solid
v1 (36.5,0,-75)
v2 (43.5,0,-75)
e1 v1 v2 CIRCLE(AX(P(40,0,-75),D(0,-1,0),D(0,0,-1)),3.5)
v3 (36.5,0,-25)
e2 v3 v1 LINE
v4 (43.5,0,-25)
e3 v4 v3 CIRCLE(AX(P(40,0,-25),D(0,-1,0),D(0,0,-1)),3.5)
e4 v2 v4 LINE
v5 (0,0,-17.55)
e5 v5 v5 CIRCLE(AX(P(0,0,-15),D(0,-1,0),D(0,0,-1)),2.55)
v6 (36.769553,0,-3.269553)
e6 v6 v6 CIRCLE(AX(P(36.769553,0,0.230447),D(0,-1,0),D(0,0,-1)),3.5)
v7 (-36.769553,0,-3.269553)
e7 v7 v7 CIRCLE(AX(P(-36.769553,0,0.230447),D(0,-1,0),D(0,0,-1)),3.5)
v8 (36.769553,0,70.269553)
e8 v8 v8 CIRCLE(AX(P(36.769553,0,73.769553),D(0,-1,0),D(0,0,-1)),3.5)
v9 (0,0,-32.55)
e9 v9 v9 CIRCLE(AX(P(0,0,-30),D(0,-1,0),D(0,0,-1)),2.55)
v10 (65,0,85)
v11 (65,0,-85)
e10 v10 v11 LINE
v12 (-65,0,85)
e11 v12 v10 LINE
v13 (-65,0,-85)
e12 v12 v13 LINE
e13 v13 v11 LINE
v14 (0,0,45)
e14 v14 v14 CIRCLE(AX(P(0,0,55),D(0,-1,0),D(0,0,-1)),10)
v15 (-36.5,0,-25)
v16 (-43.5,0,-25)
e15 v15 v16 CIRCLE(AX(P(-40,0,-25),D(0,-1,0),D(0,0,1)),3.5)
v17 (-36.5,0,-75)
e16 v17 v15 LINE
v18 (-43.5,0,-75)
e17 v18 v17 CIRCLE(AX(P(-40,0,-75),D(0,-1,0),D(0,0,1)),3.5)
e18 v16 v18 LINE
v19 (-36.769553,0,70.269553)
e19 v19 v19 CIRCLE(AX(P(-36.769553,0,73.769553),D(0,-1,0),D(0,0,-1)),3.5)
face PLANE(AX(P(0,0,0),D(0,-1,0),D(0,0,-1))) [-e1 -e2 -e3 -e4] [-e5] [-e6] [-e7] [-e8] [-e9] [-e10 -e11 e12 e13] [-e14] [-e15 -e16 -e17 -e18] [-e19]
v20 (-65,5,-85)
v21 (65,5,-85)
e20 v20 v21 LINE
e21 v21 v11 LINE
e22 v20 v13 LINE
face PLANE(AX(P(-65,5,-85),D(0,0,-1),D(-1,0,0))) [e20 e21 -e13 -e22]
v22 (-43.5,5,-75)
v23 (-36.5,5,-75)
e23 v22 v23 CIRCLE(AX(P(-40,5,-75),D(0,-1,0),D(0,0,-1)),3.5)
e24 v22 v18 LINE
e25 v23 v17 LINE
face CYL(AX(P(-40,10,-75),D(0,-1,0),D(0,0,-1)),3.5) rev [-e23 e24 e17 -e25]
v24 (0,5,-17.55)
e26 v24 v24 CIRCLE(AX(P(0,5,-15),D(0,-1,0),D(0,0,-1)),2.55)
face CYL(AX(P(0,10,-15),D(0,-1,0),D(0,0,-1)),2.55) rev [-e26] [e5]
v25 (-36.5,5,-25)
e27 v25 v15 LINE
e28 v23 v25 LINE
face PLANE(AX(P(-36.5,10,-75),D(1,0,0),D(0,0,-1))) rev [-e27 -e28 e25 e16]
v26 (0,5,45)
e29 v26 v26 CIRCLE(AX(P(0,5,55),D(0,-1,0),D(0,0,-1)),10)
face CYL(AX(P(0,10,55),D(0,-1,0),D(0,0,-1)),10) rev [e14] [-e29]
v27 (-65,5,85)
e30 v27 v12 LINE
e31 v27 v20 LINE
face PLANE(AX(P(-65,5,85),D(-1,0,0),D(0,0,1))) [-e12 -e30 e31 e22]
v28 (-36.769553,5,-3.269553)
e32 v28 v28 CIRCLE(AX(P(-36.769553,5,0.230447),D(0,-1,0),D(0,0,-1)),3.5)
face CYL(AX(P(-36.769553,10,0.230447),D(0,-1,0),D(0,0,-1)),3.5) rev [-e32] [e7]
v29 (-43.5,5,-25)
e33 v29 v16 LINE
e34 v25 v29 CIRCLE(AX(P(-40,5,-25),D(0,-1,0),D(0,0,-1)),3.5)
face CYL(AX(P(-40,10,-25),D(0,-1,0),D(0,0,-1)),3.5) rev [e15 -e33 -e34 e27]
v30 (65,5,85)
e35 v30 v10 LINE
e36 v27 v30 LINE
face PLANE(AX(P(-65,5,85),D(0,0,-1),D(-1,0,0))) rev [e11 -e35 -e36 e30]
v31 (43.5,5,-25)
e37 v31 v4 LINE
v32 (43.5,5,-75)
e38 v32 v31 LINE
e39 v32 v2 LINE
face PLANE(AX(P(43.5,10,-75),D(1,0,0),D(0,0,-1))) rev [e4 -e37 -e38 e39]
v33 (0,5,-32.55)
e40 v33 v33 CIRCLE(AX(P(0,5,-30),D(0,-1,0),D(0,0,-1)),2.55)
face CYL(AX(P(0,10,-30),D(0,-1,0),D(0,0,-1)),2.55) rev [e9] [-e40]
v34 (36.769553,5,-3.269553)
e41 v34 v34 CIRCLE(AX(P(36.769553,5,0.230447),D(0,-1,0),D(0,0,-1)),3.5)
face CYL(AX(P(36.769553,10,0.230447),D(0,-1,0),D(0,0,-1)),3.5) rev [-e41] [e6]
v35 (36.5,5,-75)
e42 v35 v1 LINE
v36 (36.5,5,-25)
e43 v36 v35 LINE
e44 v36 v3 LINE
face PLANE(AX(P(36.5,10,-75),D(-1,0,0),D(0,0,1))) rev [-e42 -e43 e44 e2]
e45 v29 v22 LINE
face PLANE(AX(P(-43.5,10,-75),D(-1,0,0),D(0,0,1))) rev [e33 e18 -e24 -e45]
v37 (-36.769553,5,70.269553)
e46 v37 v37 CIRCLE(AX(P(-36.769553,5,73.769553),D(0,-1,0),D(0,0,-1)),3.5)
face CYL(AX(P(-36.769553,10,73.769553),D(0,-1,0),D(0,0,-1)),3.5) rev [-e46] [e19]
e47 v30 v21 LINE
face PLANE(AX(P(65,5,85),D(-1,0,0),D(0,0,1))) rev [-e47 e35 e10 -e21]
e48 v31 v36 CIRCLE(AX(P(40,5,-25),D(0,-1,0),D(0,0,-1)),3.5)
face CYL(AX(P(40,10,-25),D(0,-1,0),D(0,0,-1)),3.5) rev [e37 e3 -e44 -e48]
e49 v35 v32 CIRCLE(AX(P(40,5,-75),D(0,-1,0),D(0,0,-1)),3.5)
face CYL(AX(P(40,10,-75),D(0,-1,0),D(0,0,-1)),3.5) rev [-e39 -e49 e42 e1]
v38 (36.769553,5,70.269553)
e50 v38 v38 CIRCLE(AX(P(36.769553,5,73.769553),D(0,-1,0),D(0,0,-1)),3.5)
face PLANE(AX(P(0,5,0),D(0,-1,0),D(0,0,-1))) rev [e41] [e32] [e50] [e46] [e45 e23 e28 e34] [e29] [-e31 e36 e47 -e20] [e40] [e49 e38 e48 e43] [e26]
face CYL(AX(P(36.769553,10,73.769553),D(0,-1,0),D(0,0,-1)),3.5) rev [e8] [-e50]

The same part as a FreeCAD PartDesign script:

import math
import FreeCAD as App
import Part
import Sketcher

doc = App.newDocument("Part")
body = doc.addObject("PartDesign::Body", "Body")

# Sketch on XZ plane
sketch1 = body.newObject("Sketcher::SketchObject", "Sketch")
sketch1.AttachmentSupport = (doc.getObject("XZ_Plane"), [""])
sketch1.MapMode = "FlatFace"
sketch1.addGeometry([
    Part.LineSegment(App.Vector(-65, -85, 0), App.Vector(-65, 85, 0)),
    Part.LineSegment(App.Vector(-65, 85, 0), App.Vector(65, 85, 0)),
    Part.LineSegment(App.Vector(65, 85, 0), App.Vector(65, -85, 0)),
    Part.LineSegment(App.Vector(65, -85, 0), App.Vector(-65, -85, 0)),
], False)
sketch1.addConstraint([
    Sketcher.Constraint("Coincident", 0, 2, 1, 1),
    Sketcher.Constraint("Coincident", 1, 2, 2, 1),
    Sketcher.Constraint("Coincident", 2, 2, 3, 1),
    Sketcher.Constraint("Coincident", 3, 2, 0, 1),
    Sketcher.Constraint("Vertical", 0),
    Sketcher.Constraint("Horizontal", 1),
    Sketcher.Constraint("Vertical", 2),
    Sketcher.Constraint("Horizontal", 3),
    Sketcher.Constraint("Symmetric", 0, 2, 2, 2, -1, 1),
    Sketcher.Constraint("DistanceX", 1, 1, 1, 2, 130.0),
    Sketcher.Constraint("DistanceY", 0, 1, 0, 2, 170.0),
])
pad1 = body.newObject("PartDesign::Pad", "Pad")
pad1.Profile = sketch1
pad1.Length = 5
pad1.Reversed = True

# Sketch on XZ plane
sketch2 = body.newObject("Sketcher::SketchObject", "Sketch001")
sketch2.AttachmentSupport = (doc.getObject("XZ_Plane"), [""])
sketch2.MapMode = "FlatFace"
sketch2.addGeometry(Part.Circle(App.Vector(0, 55, 0), App.Vector(0, 0, 1), 10), False)
sketch2.addConstraint([
    Sketcher.Constraint("PointOnObject", 0, 3, -2),
    Sketcher.Constraint("Diameter", 0, 20.0),
    Sketcher.Constraint("DistanceY", -1, 1, 0, 3, 55.0),
])
pocket1 = body.newObject("PartDesign::Pocket", "Pocket")
pocket1.Profile = sketch2
pocket1.Length = 10

# Sketch on XZ plane
sketch3 = body.newObject("Sketcher::SketchObject", "Sketch002")
sketch3.AttachmentSupport = (doc.getObject("XZ_Plane"), [""])
sketch3.MapMode = "FlatFace"
sketch3.addGeometry([
    Part.Circle(App.Vector(36.8, 0.2, 0), App.Vector(0, 0, 1), 3.5),  # 0
    Part.Circle(App.Vector(-36.8, 0.2, 0), App.Vector(0, 0, 1), 3.5),  # 1
    Part.Circle(App.Vector(-36.8, 73.8, 0), App.Vector(0, 0, 1), 3.5),  # 2
    Part.Circle(App.Vector(36.8, 73.8, 0), App.Vector(0, 0, 1), 3.5),  # 3
    Part.Circle(App.Vector(0, -30, 0), App.Vector(0, 0, 1), 2.5),  # 4
    Part.Circle(App.Vector(0, -15, 0), App.Vector(0, 0, 1), 2.5),  # 5
    Part.LineSegment(App.Vector(36.5, -25, 0), App.Vector(36.5, -75, 0)),  # 6
    Part.ArcOfCircle(Part.Circle(App.Vector(40, -75, 0), App.Vector(0, 0, 1), 3.5), math.radians(180), math.radians(360)),  # 7
    Part.LineSegment(App.Vector(43.5, -75, 0), App.Vector(43.5, -25, 0)),  # 8
    Part.ArcOfCircle(Part.Circle(App.Vector(40, -25, 0), App.Vector(0, 0, 1), 3.5), math.radians(0), math.radians(180)),  # 9
    Part.LineSegment(App.Vector(-36.5, -75, 0), App.Vector(-36.5, -25, 0)),  # 10
    Part.ArcOfCircle(Part.Circle(App.Vector(-40, -25, 0), App.Vector(0, 0, 1), 3.5), math.radians(0), math.radians(180)),  # 11
    Part.LineSegment(App.Vector(-43.5, -25, 0), App.Vector(-43.5, -75, 0)),  # 12
    Part.ArcOfCircle(Part.Circle(App.Vector(-40, -75, 0), App.Vector(0, 0, 1), 3.5), math.radians(180), math.radians(360)),  # 13
], False)
sketch3.addConstraint([
    Sketcher.Constraint("Tangent", 6, 2, 7, 1),
    Sketcher.Constraint("Tangent", 7, 2, 8, 1),
    Sketcher.Constraint("Tangent", 8, 2, 9, 1),
    Sketcher.Constraint("Tangent", 9, 2, 6, 1),
    Sketcher.Constraint("Tangent", 10, 2, 11, 1),
    Sketcher.Constraint("Tangent", 11, 2, 12, 1),
    Sketcher.Constraint("Tangent", 12, 2, 13, 1),
    Sketcher.Constraint("Tangent", 13, 2, 10, 1),
    Sketcher.Constraint("Vertical", 6),
    Sketcher.Constraint("Vertical", 8),
    Sketcher.Constraint("Vertical", 10),
    Sketcher.Constraint("Vertical", 12),
    Sketcher.Constraint("Equal", 0, 1),
    Sketcher.Constraint("Equal", 1, 2),
    Sketcher.Constraint("Equal", 2, 3),
    Sketcher.Constraint("Equal", 4, 5),
    Sketcher.Constraint("Equal", 3, 7),
    Sketcher.Constraint("Equal", 9, 11),
    Sketcher.Constraint("Symmetric", 0, 3, 1, 3, -2),
    Sketcher.Constraint("Symmetric", 2, 3, 3, 3, -2),
    Sketcher.Constraint("Symmetric", 9, 3, 11, 3, -2),
    Sketcher.Constraint("PointOnObject", 4, 3, -2),
    Sketcher.Constraint("PointOnObject", 5, 3, -2),
    Sketcher.Constraint("Horizontal", 7, 3, 13, 3),
    Sketcher.Constraint("Vertical", 1, 3, 2, 3),
    Sketcher.Constraint("Diameter", 0, 7.0),
    Sketcher.Constraint("Diameter", 4, 5.1),
    Sketcher.Constraint("DistanceY", 6, 2, 6, 1, 50.0),
    Sketcher.Constraint("DistanceY", 4, 3, -1, 1, 30.0),
    Sketcher.Constraint("DistanceY", 5, 3, -1, 1, 15.0),
    Sketcher.Constraint("DistanceX", -1, 1, 7, 3, 40.0),
    Sketcher.Constraint("DistanceY", 7, 3, -1, 1, 75.0),
    Sketcher.Constraint("DistanceX", -1, 1, 0, 3, 36.769553),
    Sketcher.Constraint("DistanceY", -1, 1, 0, 3, 0.230447),
    Sketcher.Constraint("DistanceY", -1, 1, 2, 3, 73.769553),
])
pocket2 = body.newObject("PartDesign::Pocket", "Pocket001")
pocket2.Profile = sketch3
pocket2.Length = 10

doc.recompute()
